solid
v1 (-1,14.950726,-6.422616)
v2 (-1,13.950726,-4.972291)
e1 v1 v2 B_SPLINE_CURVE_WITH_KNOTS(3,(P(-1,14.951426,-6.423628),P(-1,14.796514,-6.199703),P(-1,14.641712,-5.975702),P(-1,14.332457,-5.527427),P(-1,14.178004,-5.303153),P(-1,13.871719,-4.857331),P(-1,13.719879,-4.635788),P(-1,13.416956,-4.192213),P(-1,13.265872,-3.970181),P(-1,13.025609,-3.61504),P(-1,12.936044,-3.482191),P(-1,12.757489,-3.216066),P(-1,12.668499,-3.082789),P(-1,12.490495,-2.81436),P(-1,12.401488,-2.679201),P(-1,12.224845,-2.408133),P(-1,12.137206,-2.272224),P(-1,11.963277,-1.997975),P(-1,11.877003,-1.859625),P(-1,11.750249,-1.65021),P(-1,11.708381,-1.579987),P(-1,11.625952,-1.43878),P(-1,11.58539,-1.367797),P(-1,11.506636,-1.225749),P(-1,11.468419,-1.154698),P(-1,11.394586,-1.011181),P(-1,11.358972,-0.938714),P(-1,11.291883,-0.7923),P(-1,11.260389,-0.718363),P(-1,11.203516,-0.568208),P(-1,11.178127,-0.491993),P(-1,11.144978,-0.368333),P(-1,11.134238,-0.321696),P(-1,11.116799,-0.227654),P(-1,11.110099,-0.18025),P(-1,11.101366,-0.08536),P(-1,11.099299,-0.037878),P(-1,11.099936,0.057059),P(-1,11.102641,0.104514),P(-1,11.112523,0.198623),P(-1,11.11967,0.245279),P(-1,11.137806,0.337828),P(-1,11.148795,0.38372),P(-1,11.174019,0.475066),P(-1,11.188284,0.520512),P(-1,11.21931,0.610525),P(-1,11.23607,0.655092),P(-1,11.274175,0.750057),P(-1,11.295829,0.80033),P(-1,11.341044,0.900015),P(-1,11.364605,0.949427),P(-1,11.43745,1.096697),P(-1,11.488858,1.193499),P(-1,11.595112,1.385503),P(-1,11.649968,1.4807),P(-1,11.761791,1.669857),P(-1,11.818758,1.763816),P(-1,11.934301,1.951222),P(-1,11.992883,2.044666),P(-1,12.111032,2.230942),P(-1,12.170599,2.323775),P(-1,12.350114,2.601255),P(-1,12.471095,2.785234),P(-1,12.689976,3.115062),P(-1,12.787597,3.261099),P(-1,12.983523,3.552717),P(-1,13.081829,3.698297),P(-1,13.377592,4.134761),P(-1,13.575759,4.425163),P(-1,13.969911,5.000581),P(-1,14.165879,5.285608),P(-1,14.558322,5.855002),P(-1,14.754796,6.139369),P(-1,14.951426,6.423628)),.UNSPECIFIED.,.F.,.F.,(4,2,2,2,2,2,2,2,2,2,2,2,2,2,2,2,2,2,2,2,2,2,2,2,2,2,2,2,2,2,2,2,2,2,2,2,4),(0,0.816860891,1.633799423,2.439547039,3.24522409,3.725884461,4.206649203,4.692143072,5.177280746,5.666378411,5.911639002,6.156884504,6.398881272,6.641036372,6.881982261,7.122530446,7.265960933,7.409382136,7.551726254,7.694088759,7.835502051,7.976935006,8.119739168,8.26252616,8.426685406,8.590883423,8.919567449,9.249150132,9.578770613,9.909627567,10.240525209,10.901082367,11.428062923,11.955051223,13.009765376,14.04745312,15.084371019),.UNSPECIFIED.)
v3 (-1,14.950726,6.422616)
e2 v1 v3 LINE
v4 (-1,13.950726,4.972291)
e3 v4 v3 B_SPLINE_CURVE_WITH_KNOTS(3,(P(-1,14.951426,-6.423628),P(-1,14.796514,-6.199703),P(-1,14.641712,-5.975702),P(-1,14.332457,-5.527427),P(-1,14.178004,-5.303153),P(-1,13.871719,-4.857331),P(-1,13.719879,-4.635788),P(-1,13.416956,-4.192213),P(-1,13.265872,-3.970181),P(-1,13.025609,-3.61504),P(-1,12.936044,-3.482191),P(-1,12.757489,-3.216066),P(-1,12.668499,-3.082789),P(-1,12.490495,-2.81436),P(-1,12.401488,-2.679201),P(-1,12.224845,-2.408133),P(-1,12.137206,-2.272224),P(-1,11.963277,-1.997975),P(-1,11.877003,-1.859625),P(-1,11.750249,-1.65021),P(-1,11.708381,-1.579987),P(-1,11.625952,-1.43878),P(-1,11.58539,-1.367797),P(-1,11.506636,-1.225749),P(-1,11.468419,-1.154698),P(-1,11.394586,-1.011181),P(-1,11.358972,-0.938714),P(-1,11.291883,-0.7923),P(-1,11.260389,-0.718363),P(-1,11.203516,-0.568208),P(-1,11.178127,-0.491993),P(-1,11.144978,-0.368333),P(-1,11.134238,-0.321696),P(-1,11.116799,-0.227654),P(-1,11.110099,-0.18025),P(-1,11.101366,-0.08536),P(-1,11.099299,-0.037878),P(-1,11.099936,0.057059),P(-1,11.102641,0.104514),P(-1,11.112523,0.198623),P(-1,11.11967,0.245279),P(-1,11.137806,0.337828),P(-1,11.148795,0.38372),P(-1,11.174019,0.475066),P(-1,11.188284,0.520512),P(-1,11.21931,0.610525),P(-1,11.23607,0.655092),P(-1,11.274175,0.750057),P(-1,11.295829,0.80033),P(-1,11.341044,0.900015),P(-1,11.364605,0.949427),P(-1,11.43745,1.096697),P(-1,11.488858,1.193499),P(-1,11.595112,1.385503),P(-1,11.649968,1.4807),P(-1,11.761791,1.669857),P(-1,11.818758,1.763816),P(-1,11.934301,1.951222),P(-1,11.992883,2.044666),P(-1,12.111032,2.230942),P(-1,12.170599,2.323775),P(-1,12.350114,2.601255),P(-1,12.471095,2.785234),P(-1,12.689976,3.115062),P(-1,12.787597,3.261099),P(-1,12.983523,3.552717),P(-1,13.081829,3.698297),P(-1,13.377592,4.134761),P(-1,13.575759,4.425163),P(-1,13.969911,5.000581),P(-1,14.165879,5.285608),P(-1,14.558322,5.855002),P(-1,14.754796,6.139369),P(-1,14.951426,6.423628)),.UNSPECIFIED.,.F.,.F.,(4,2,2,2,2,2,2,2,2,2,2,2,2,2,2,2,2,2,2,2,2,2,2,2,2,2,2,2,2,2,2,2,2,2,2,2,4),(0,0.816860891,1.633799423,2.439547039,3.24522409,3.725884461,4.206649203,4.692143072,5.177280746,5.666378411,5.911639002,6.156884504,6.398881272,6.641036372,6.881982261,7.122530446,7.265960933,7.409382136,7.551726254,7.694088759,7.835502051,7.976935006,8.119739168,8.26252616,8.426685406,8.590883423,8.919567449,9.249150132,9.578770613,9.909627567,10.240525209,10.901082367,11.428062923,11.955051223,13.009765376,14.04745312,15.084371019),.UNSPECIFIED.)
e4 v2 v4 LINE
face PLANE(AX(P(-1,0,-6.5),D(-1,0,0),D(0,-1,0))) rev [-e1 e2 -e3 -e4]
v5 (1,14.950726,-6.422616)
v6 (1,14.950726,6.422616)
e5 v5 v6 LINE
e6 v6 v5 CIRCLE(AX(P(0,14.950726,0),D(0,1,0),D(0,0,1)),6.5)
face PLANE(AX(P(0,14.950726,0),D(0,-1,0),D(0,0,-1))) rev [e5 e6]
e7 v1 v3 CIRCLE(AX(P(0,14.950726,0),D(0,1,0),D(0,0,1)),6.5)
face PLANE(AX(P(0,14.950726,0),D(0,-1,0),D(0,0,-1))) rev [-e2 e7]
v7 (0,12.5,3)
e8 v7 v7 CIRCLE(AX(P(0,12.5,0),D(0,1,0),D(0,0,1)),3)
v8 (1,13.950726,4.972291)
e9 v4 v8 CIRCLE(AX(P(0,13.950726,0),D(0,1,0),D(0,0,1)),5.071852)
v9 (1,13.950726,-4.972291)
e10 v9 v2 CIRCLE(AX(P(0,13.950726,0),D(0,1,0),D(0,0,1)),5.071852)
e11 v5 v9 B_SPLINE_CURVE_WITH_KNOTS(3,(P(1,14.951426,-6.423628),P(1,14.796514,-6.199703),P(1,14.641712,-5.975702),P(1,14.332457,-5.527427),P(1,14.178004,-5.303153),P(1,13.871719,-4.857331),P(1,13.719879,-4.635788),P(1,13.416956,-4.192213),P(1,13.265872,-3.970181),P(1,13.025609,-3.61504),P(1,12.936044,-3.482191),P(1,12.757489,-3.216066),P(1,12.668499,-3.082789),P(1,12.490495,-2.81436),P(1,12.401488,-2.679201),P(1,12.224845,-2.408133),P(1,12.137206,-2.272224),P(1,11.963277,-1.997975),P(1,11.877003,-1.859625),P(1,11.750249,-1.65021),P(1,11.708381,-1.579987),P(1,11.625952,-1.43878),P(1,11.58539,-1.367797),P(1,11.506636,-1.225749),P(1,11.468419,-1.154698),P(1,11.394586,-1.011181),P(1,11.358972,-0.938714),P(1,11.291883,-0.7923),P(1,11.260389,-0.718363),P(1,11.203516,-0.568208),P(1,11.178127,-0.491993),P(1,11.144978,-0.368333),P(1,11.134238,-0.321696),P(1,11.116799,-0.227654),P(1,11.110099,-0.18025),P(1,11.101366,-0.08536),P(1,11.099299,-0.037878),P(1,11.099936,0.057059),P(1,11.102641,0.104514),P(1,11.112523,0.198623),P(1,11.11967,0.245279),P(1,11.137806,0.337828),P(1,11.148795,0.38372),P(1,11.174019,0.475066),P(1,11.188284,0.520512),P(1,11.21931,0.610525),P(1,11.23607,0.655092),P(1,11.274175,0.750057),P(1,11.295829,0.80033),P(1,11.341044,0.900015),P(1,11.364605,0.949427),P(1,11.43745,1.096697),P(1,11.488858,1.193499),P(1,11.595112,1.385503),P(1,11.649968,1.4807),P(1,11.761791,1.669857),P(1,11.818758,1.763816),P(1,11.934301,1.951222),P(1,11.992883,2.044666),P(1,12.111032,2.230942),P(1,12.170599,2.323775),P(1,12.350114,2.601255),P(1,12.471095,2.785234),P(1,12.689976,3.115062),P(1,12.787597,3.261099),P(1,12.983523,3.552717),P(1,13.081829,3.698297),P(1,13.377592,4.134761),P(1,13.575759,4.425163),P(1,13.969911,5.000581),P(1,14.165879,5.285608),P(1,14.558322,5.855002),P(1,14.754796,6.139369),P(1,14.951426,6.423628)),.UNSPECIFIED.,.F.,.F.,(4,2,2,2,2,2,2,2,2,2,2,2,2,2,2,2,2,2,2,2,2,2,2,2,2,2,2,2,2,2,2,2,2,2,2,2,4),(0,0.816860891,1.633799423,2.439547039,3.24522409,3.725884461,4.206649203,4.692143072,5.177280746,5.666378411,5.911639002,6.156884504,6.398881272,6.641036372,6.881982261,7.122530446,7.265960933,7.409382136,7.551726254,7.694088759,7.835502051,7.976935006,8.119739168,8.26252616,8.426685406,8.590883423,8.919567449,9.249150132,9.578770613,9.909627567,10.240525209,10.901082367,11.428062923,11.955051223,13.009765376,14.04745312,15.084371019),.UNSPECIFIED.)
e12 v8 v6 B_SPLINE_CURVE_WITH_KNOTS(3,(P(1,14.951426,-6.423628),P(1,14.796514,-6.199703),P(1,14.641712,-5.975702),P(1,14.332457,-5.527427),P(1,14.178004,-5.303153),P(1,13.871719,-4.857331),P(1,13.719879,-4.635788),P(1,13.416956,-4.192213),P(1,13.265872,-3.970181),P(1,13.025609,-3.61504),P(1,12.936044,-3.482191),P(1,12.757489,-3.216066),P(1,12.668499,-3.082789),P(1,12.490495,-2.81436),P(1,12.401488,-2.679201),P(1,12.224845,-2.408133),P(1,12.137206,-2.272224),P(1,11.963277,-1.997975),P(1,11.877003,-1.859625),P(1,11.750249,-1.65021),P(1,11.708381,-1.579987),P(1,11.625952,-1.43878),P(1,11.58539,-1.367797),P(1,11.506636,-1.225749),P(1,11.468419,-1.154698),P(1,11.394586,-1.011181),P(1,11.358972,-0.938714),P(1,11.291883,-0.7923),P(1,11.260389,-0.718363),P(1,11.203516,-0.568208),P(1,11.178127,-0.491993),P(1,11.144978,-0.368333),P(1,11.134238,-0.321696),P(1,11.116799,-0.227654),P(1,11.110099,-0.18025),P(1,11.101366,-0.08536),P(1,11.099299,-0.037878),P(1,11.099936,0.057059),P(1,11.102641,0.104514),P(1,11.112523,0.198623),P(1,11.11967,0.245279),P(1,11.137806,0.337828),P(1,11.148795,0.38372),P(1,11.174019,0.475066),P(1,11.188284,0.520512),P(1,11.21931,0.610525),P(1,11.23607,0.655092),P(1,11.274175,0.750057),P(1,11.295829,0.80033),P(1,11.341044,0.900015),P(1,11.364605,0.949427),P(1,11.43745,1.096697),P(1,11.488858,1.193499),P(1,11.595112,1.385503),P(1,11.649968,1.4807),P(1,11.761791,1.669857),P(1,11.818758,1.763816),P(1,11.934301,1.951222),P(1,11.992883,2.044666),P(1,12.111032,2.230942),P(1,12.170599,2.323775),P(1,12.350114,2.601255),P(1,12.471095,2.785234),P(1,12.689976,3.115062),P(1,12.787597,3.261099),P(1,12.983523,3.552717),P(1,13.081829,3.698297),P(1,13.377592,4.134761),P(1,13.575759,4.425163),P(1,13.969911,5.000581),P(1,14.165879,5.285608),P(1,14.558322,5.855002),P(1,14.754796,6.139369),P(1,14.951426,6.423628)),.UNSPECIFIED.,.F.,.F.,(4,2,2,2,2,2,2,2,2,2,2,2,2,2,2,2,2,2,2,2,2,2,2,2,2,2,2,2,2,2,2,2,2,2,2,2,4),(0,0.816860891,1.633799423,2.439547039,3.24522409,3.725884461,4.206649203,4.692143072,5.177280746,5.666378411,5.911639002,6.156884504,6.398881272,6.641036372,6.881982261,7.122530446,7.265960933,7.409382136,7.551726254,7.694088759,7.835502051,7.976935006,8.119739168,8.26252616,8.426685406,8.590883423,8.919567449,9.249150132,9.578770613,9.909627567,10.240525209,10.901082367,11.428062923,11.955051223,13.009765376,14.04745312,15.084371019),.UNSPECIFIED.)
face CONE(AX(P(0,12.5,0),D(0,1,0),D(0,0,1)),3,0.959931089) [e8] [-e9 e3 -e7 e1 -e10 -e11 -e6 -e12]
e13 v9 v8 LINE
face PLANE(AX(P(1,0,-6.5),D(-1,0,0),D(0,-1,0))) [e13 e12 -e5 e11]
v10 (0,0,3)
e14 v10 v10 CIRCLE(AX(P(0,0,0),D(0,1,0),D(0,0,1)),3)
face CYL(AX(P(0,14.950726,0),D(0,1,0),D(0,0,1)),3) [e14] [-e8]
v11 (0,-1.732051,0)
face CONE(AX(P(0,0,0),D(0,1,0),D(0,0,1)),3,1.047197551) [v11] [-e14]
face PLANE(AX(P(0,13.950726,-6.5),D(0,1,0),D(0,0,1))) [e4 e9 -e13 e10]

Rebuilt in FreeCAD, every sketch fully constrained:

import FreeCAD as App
import Part
import Sketcher
from FreeCAD import Vector
Q = App.Units.Quantity

doc = App.newDocument("Part")
params = doc.addObject("Spreadsheet::Sheet", "Params")
for row, (alias, value) in enumerate([
    ("sketch1_width", "6.5 mm"),
    ("sketch1_height", "12.5 mm"),
    ("revolution_angle", "360 deg"),
    ("sketch2_width", "2 mm"),
    ("sketch2_height", "1 mm"),
], start=1):
    params.set(f"A{row}", alias)
    params.set(f"B{row}", "=" + value)
    params.setAlias(f"B{row}", alias)

body = doc.addObject("PartDesign::Body", "Body")

sketch1 = doc.addObject("Sketcher::SketchObject", "Sketch")
body.addObject(sketch1)
sketch1.AttachmentSupport = (doc.XY_Plane, [""])
sketch1.MapMode = "FlatFace"
sketch1.addGeometry([
    Part.LineSegment(Vector(3, 12.5, 0), Vector(6.5, 15, 0)),
    Part.LineSegment(Vector(6.5, 15, 0), Vector(0, 15, 0)),
    Part.LineSegment(Vector(0, 15, 0), Vector(0, -1.7, 0)),
    Part.LineSegment(Vector(0, -1.7, 0), Vector(3, 0, 0)),
    Part.LineSegment(Vector(3, 0, 0), Vector(3, 12.5, 0)),
], False)
sketch1.addConstraint([
    Sketcher.Constraint("Coincident", 0, 2, 1, 1),
    Sketcher.Constraint("Coincident", 1, 2, 2, 1),
    Sketcher.Constraint("Coincident", 2, 2, 3, 1),
    Sketcher.Constraint("Coincident", 3, 2, 4, 1),
    Sketcher.Constraint("Coincident", 4, 2, 0, 1),
    Sketcher.Constraint("Horizontal", 1),
    Sketcher.Constraint("Vertical", 2),
    Sketcher.Constraint("Vertical", 4),
    Sketcher.Constraint("PointOnObject", 1, 2, -2),
    Sketcher.Constraint("PointOnObject", 3, 2, -1),
    Sketcher.Constraint("Angle", 0, Q("35 deg")),
    Sketcher.Constraint("Angle", 3, Q("30 deg")),
    Sketcher.Constraint("DistanceX", 1, 2, 1, 1, Q("6.5 mm")),
    Sketcher.Constraint("DistanceY", 4, 1, 4, 2, Q("12.5 mm")),
    Sketcher.Constraint("DistanceX", -1, 1, 3, 2, Q("3 mm")),
])
sketch1.setExpression("Constraints[12]", "Params.sketch1_width")
sketch1.setExpression("Constraints[13]", "Params.sketch1_height")
revolution = doc.addObject("PartDesign::Revolution", "Revolution")
body.addObject(revolution)
revolution.Profile = sketch1
revolution.ReferenceAxis = (sketch1, ["V_Axis"])
revolution.setExpression("Angle", "Params.revolution_angle")

sketch2 = doc.addObject("Sketcher::SketchObject", "Sketch001")
body.addObject(sketch2)
sketch2.AttachmentSupport = (doc.XY_Plane, [""])
sketch2.MapMode = "FlatFace"
sketch2.addGeometry([
    Part.LineSegment(Vector(-1, 15, 0), Vector(-1, 14, 0)),
    Part.LineSegment(Vector(-1, 14, 0), Vector(1, 14, 0)),
    Part.LineSegment(Vector(1, 14, 0), Vector(1, 15, 0)),
    Part.LineSegment(Vector(1, 15, 0), Vector(-1, 15, 0)),
], False)
sketch2.addConstraint([
    Sketcher.Constraint("Coincident", 0, 2, 1, 1),
    Sketcher.Constraint("Coincident", 1, 2, 2, 1),
    Sketcher.Constraint("Coincident", 2, 2, 3, 1),
    Sketcher.Constraint("Coincident", 3, 2, 0, 1),
    Sketcher.Constraint("Vertical", 0),
    Sketcher.Constraint("Horizontal", 1),
    Sketcher.Constraint("Vertical", 2),
    Sketcher.Constraint("Horizontal", 3),
    Sketcher.Constraint("DistanceX", 1, 1, 1, 2, Q("2 mm")),
    Sketcher.Constraint("DistanceY", 0, 2, 0, 1, Q("1 mm")),
    Sketcher.Constraint("DistanceX", 0, 2, -1, 1, Q("1 mm")),
    Sketcher.Constraint("DistanceY", -1, 1, 0, 2, Q("13.950726 mm")),
])
sketch2.setExpression("Constraints[8]", "Params.sketch2_width")
sketch2.setExpression("Constraints[9]", "Params.sketch2_height")
pocket1 = doc.addObject("PartDesign::Pocket", "Pocket")
body.addObject(pocket1)
pocket1.Profile = sketch2
pocket1.Type = "ThroughAll"
pocket1.Midplane = True

doc.recompute()
